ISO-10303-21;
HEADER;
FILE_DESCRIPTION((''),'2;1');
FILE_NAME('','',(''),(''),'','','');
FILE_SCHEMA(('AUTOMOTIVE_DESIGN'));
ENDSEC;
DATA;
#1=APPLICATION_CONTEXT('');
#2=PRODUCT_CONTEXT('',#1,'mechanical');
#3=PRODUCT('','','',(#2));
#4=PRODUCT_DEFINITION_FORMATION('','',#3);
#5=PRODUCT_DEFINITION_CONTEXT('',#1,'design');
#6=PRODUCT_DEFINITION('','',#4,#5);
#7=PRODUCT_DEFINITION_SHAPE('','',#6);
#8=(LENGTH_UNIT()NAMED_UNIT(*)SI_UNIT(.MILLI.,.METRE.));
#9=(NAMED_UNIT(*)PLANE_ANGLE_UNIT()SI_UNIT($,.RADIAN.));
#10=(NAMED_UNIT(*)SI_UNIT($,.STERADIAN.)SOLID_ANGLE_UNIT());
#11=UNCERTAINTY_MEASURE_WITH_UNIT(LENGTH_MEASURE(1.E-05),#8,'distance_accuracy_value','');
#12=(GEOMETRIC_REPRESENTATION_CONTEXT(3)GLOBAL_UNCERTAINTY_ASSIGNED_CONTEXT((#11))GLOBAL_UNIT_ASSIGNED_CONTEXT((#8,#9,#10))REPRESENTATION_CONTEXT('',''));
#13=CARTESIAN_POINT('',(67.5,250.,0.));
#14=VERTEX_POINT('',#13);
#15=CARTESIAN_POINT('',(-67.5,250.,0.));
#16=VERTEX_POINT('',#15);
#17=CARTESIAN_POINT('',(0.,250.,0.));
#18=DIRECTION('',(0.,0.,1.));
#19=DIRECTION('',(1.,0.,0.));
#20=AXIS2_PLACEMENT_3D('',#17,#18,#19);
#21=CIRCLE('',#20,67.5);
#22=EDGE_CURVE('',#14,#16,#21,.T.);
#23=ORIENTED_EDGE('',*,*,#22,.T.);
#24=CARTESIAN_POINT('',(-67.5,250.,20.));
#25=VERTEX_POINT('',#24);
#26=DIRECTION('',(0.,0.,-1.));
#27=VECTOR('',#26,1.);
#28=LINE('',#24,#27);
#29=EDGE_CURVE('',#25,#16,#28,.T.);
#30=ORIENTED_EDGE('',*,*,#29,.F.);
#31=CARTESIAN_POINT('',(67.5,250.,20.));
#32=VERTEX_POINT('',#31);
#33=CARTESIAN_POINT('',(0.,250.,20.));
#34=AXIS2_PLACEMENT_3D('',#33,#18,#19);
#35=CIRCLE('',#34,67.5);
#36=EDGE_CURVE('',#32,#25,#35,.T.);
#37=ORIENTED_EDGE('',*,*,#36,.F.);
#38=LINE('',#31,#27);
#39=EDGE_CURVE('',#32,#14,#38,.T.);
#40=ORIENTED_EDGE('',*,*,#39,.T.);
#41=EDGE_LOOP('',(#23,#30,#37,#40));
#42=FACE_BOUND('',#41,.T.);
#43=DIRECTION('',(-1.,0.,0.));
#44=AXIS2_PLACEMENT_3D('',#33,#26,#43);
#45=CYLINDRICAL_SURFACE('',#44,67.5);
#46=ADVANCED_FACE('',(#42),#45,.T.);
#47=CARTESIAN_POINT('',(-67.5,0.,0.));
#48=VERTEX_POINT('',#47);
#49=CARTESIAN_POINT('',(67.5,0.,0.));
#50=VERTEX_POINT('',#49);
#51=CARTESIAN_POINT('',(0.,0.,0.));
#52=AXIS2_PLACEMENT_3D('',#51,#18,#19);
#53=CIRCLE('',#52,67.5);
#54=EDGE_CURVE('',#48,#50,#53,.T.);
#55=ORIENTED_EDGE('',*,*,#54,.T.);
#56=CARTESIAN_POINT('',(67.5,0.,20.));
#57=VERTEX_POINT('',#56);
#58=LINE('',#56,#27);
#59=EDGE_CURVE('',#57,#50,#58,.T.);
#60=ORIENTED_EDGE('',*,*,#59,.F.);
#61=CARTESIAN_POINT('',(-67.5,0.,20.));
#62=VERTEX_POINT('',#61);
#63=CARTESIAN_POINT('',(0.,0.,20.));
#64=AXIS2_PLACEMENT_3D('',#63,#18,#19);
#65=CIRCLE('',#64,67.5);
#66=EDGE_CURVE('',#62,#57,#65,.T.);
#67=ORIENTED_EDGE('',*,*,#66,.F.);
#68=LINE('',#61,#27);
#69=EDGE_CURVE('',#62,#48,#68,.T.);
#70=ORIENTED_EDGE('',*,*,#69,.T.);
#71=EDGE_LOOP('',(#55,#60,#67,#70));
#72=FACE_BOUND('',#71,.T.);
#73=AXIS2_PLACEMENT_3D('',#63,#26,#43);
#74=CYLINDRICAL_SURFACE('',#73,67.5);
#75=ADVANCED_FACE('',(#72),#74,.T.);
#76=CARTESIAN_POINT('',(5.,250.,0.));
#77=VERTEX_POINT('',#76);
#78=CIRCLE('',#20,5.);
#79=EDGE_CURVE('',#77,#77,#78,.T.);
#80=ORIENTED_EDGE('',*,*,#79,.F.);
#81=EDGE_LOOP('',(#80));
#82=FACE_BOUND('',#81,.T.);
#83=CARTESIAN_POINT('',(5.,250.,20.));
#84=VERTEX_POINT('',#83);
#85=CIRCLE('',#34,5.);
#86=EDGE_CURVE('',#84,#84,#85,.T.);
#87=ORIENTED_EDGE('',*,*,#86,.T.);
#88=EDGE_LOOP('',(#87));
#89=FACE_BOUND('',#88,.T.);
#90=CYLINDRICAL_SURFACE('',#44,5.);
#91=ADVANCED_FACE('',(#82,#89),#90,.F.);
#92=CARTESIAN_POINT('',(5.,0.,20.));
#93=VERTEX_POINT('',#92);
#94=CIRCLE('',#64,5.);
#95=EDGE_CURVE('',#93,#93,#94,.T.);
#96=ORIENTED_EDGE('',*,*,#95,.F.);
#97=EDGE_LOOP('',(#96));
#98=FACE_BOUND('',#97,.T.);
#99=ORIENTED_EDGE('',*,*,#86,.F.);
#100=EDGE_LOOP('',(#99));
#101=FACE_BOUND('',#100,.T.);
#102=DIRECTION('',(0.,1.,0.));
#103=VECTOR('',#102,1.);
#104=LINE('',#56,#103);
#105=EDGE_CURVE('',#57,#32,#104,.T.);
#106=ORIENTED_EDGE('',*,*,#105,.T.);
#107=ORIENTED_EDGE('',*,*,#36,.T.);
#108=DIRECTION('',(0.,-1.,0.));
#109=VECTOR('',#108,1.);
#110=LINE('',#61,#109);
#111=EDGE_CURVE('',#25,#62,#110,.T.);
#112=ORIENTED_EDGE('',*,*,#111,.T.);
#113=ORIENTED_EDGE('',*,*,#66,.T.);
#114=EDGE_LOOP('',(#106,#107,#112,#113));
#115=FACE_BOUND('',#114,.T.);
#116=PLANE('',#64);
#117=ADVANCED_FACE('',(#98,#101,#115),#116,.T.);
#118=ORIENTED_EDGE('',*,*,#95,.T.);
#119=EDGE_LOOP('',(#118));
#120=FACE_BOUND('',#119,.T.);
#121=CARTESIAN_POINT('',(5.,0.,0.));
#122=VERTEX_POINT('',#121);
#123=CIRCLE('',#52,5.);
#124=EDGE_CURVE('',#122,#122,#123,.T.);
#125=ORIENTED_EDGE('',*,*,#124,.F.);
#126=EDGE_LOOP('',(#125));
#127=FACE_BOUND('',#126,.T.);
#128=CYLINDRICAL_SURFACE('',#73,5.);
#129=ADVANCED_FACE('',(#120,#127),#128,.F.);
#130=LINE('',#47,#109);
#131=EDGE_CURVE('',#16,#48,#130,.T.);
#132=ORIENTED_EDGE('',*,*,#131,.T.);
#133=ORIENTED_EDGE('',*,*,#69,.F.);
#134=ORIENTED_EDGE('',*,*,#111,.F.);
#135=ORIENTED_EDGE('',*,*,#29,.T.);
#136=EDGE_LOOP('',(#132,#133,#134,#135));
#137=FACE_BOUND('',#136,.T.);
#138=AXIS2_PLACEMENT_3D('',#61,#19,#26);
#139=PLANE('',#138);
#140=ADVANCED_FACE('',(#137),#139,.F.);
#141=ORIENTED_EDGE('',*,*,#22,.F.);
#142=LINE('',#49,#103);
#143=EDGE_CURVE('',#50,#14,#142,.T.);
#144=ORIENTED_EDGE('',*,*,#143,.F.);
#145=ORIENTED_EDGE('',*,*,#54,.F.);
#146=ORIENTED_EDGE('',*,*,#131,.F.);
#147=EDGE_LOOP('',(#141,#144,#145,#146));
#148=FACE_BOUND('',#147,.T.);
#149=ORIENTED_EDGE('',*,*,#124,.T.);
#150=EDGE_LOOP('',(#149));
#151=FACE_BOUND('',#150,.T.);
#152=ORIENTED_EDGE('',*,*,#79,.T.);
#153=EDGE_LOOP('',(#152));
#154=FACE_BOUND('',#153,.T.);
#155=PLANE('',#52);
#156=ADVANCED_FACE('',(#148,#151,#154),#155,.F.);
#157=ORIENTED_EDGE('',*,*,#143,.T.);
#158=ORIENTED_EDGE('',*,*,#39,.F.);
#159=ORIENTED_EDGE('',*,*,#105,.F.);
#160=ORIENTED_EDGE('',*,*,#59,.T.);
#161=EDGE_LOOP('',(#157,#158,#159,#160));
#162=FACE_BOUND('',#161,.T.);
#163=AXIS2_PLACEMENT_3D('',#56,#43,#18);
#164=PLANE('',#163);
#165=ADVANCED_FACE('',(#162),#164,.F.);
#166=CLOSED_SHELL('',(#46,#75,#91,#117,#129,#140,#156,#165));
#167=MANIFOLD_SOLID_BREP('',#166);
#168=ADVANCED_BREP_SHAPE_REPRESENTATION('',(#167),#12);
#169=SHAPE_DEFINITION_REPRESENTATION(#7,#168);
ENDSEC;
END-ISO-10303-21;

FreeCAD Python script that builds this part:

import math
import FreeCAD as App
import Part
import Sketcher
from FreeCAD import Vector
Q = App.Units.Quantity

doc = App.newDocument("Part")
body = doc.addObject("PartDesign::Body", "Body")

sketch1 = body.newObject("Sketcher::SketchObject", "Sketch")
sketch1.AttachmentSupport = (doc.getObject("XY_Plane"), [""])
sketch1.MapMode = "FlatFace"
sketch1.addGeometry(Part.LineSegment(Vector(-67.5, 250, 0), Vector(-67.5, 0, 0)), False)
sketch1.addGeometry(Part.ArcOfCircle(Part.Circle(Vector(0, 0, 0), Vector(0, 0, 1), 67.5), math.radians(180), math.radians(360)), False)
sketch1.addGeometry(Part.LineSegment(Vector(67.5, 0, 0), Vector(67.5, 250, 0)), False)
sketch1.addGeometry(Part.ArcOfCircle(Part.Circle(Vector(0, 250, 0), Vector(0, 0, 1), 67.5), math.radians(0), math.radians(180)), False)
sketch1.addGeometry(Part.Circle(Vector(0, 0, 0), Vector(0, 0, 1), 5), False)
sketch1.addGeometry(Part.Circle(Vector(0, 250, 0), Vector(0, 0, 1), 5), False)
sketch1.addConstraint(Sketcher.Constraint("Tangent", 0, 2, 1, 1))
sketch1.addConstraint(Sketcher.Constraint("Tangent", 1, 2, 2, 1))
sketch1.addConstraint(Sketcher.Constraint("Tangent", 2, 2, 3, 1))
sketch1.addConstraint(Sketcher.Constraint("Tangent", 3, 2, 0, 1))
sketch1.addConstraint(Sketcher.Constraint("Vertical", 0))
sketch1.addConstraint(Sketcher.Constraint("Vertical", 2))
sketch1.addConstraint(Sketcher.Constraint("Coincident", 1, 3, -1, 1))
sketch1.addConstraint(Sketcher.Constraint("Coincident", 4, 3, -1, 1))
sketch1.addConstraint(Sketcher.Constraint("Coincident", 5, 3, 3, 3))
sketch1.addConstraint(Sketcher.Constraint("Equal", 4, 5))
sketch1.addConstraint(Sketcher.Constraint("Diameter", 4, Q("10 mm")))
sketch1.addConstraint(Sketcher.Constraint("Radius", 1, Q("67.5 mm")))
sketch1.addConstraint(Sketcher.Constraint("DistanceY", 0, 2, 0, 1, Q("250 mm")))
pad1 = body.newObject("PartDesign::Pad", "Pad")
pad1.Profile = sketch1
pad1.Length = 20

doc.recompute()
